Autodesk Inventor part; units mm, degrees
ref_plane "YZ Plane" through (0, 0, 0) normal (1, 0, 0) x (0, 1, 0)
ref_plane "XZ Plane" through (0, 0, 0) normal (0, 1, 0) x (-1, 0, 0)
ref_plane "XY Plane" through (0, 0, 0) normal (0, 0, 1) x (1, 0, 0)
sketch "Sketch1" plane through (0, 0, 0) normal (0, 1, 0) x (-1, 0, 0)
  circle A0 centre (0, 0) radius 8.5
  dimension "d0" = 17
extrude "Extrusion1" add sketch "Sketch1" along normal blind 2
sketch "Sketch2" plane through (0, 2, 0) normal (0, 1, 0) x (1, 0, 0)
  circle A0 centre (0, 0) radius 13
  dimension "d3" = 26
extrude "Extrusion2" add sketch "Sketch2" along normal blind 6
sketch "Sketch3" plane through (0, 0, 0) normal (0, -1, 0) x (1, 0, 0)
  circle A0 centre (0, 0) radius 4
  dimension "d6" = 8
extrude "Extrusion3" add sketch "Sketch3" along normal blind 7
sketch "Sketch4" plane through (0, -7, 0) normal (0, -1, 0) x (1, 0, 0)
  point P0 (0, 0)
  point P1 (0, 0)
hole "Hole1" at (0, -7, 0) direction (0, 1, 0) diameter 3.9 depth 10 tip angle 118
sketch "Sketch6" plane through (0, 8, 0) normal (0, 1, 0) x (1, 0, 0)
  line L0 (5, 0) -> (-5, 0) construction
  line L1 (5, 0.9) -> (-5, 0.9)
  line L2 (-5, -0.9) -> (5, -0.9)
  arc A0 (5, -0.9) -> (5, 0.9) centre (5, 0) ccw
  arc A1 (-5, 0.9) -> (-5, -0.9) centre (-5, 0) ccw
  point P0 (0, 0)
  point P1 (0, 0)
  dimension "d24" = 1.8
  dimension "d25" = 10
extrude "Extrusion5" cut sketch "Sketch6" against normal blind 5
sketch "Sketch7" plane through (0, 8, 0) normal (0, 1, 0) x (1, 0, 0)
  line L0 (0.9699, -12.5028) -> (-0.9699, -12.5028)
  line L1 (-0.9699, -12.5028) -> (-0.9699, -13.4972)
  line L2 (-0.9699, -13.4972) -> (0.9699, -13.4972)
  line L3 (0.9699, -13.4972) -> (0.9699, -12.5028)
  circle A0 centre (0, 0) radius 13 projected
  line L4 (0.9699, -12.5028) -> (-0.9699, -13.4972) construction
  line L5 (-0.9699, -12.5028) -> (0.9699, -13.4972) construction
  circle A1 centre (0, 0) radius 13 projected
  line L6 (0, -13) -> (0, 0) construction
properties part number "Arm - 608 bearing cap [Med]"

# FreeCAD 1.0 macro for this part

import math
import FreeCAD as App
import Part
import Sketcher
Q = App.Units.Quantity

doc = App.newDocument("Part")
params = doc.addObject("Spreadsheet::Sheet", "Params")
for row, (alias, value) in enumerate([
    ("sketch1_diameter", "17 mm"),
    ("pad1_length", "2 mm"),
    ("sketch2_diameter", "26 mm"),
    ("pad2_length", "6 mm"),
    ("sketch3_diameter", "8 mm"),
    ("pad3_length", "7 mm"),
    ("sketch4_diameter", "3.9 mm"),
    ("hole_diameter", "3.9 mm"),
    ("hole_depth", "10 mm"),
    ("sketch5_radius", "0.9 mm"),
    ("sketch5_width", "10 mm"),
    ("pocket1_length", "5 mm"),
], start=1):
    params.set(f"A{row}", alias)
    params.set(f"B{row}", "=" + value)
    params.setAlias(f"B{row}", alias)

body = doc.addObject("PartDesign::Body", "Body")

sketch1 = body.newObject("Sketcher::SketchObject", "Sketch")
sketch1.AttachmentSupport = (doc.getObject("XZ_Plane"), [""])
sketch1.MapMode = "FlatFace"
sketch1.addGeometry(Part.Circle(App.Vector(0, 0, 0), App.Vector(0, 0, 1), 8), False)
sketch1.addConstraint([
    Sketcher.Constraint("Coincident", 0, 3, -1, 1),
    Sketcher.Constraint("Diameter", 0, Q("17 mm")),
])
sketch1.setExpression("Constraints[1]", "Params.sketch1_diameter")
pad1 = body.newObject("PartDesign::Pad", "Pad")
pad1.Profile = sketch1
pad1.setExpression("Length", "Params.pad1_length")
pad1.Reversed = True

sketch2 = body.newObject("Sketcher::SketchObject", "Sketch001")
sketch2.AttachmentSupport = (doc.getObject("XZ_Plane"), [""])
sketch2.MapMode = "FlatFace"
sketch2.AttachmentOffset = App.Placement(App.Vector(0, 0, -2), App.Rotation())
sketch2.addGeometry(Part.Circle(App.Vector(0, 0, 0), App.Vector(0, 0, 1), 13), False)
sketch2.addConstraint([
    Sketcher.Constraint("Coincident", 0, 3, -1, 1),
    Sketcher.Constraint("Diameter", 0, Q("26 mm")),
])
sketch2.setExpression("Constraints[1]", "Params.sketch2_diameter")
pad2 = body.newObject("PartDesign::Pad", "Pad001")
pad2.Profile = sketch2
pad2.setExpression("Length", "Params.pad2_length")
pad2.Reversed = True

sketch3 = body.newObject("Sketcher::SketchObject", "Sketch002")
sketch3.AttachmentSupport = (doc.getObject("XZ_Plane"), [""])
sketch3.MapMode = "FlatFace"
sketch3.addGeometry(Part.Circle(App.Vector(0, 0, 0), App.Vector(0, 0, 1), 4), False)
sketch3.addConstraint([
    Sketcher.Constraint("Coincident", 0, 3, -1, 1),
    Sketcher.Constraint("Diameter", 0, Q("8 mm")),
])
sketch3.setExpression("Constraints[1]", "Params.sketch3_diameter")
pad3 = body.newObject("PartDesign::Pad", "Pad002")
pad3.Profile = sketch3
pad3.setExpression("Length", "Params.pad3_length")

sketch4 = body.newObject("Sketcher::SketchObject", "Sketch003")
sketch4.AttachmentSupport = (doc.getObject("XZ_Plane"), [""])
sketch4.MapMode = "FlatFace"
sketch4.AttachmentOffset = App.Placement(App.Vector(0, 0, 7), App.Rotation())
sketch4.addGeometry(Part.Circle(App.Vector(0, 0, 0), App.Vector(0, 0, 1), 1.9), False)
sketch4.addConstraint([
    Sketcher.Constraint("Coincident", 0, 3, -1, 1),
    Sketcher.Constraint("Diameter", 0, Q("3.9 mm")),
])
sketch4.setExpression("Constraints[1]", "Params.sketch4_diameter")
doc.recompute()
hole = body.newObject("PartDesign::Hole", "Hole")
hole.Profile = sketch4
hole.ThreadType = "None"
hole.setExpression("Diameter", "Params.hole_diameter")
hole.DepthType = "Dimension"
hole.setExpression("Depth", "Params.hole_depth")
hole.DrillPoint = "Angled"
hole.DrillPointAngle = 118

sketch5 = body.newObject("Sketcher::SketchObject", "Sketch004")
sketch5.AttachmentSupport = (doc.getObject("XZ_Plane"), [""])
sketch5.MapMode = "FlatFace"
sketch5.AttachmentOffset = App.Placement(App.Vector(0, 0, -8), App.Rotation())
sketch5.addGeometry([
    Part.ArcOfCircle(Part.Circle(App.Vector(5, 0, 0), App.Vector(0, 0, 1), 0.9), math.radians(-90), math.radians(90)),
    Part.LineSegment(App.Vector(5, -0.9, 0), App.Vector(-5, -0.9, 0)),
    Part.ArcOfCircle(Part.Circle(App.Vector(-5, 0, 0), App.Vector(0, 0, 1), 0.9), math.radians(90), math.radians(270)),
    Part.LineSegment(App.Vector(-5, 0.9, 0), App.Vector(5, 0.9, 0)),
], False)
sketch5.addConstraint([
    Sketcher.Constraint("Tangent", 0, 1, 1, 1),
    Sketcher.Constraint("Tangent", 1, 2, 2, 2),
    Sketcher.Constraint("Tangent", 2, 1, 3, 1),
    Sketcher.Constraint("Tangent", 3, 2, 0, 2),
    Sketcher.Constraint("Horizontal", 1),
    Sketcher.Constraint("Horizontal", 3),
    Sketcher.Constraint("Symmetric", 0, 3, 2, 3, -1, 1),
    Sketcher.Constraint("Radius", 0, Q("0.9 mm")),
    Sketcher.Constraint("DistanceX", 1, 2, 1, 1, Q("10 mm")),
])
sketch5.setExpression("Constraints[7]", "Params.sketch5_radius")
sketch5.setExpression("Constraints[8]", "Params.sketch5_width")
pocket1 = body.newObject("PartDesign::Pocket", "Pocket")
pocket1.Profile = sketch5
pocket1.setExpression("Length", "Params.pocket1_length")
pocket1.Reversed = True

doc.recompute()
